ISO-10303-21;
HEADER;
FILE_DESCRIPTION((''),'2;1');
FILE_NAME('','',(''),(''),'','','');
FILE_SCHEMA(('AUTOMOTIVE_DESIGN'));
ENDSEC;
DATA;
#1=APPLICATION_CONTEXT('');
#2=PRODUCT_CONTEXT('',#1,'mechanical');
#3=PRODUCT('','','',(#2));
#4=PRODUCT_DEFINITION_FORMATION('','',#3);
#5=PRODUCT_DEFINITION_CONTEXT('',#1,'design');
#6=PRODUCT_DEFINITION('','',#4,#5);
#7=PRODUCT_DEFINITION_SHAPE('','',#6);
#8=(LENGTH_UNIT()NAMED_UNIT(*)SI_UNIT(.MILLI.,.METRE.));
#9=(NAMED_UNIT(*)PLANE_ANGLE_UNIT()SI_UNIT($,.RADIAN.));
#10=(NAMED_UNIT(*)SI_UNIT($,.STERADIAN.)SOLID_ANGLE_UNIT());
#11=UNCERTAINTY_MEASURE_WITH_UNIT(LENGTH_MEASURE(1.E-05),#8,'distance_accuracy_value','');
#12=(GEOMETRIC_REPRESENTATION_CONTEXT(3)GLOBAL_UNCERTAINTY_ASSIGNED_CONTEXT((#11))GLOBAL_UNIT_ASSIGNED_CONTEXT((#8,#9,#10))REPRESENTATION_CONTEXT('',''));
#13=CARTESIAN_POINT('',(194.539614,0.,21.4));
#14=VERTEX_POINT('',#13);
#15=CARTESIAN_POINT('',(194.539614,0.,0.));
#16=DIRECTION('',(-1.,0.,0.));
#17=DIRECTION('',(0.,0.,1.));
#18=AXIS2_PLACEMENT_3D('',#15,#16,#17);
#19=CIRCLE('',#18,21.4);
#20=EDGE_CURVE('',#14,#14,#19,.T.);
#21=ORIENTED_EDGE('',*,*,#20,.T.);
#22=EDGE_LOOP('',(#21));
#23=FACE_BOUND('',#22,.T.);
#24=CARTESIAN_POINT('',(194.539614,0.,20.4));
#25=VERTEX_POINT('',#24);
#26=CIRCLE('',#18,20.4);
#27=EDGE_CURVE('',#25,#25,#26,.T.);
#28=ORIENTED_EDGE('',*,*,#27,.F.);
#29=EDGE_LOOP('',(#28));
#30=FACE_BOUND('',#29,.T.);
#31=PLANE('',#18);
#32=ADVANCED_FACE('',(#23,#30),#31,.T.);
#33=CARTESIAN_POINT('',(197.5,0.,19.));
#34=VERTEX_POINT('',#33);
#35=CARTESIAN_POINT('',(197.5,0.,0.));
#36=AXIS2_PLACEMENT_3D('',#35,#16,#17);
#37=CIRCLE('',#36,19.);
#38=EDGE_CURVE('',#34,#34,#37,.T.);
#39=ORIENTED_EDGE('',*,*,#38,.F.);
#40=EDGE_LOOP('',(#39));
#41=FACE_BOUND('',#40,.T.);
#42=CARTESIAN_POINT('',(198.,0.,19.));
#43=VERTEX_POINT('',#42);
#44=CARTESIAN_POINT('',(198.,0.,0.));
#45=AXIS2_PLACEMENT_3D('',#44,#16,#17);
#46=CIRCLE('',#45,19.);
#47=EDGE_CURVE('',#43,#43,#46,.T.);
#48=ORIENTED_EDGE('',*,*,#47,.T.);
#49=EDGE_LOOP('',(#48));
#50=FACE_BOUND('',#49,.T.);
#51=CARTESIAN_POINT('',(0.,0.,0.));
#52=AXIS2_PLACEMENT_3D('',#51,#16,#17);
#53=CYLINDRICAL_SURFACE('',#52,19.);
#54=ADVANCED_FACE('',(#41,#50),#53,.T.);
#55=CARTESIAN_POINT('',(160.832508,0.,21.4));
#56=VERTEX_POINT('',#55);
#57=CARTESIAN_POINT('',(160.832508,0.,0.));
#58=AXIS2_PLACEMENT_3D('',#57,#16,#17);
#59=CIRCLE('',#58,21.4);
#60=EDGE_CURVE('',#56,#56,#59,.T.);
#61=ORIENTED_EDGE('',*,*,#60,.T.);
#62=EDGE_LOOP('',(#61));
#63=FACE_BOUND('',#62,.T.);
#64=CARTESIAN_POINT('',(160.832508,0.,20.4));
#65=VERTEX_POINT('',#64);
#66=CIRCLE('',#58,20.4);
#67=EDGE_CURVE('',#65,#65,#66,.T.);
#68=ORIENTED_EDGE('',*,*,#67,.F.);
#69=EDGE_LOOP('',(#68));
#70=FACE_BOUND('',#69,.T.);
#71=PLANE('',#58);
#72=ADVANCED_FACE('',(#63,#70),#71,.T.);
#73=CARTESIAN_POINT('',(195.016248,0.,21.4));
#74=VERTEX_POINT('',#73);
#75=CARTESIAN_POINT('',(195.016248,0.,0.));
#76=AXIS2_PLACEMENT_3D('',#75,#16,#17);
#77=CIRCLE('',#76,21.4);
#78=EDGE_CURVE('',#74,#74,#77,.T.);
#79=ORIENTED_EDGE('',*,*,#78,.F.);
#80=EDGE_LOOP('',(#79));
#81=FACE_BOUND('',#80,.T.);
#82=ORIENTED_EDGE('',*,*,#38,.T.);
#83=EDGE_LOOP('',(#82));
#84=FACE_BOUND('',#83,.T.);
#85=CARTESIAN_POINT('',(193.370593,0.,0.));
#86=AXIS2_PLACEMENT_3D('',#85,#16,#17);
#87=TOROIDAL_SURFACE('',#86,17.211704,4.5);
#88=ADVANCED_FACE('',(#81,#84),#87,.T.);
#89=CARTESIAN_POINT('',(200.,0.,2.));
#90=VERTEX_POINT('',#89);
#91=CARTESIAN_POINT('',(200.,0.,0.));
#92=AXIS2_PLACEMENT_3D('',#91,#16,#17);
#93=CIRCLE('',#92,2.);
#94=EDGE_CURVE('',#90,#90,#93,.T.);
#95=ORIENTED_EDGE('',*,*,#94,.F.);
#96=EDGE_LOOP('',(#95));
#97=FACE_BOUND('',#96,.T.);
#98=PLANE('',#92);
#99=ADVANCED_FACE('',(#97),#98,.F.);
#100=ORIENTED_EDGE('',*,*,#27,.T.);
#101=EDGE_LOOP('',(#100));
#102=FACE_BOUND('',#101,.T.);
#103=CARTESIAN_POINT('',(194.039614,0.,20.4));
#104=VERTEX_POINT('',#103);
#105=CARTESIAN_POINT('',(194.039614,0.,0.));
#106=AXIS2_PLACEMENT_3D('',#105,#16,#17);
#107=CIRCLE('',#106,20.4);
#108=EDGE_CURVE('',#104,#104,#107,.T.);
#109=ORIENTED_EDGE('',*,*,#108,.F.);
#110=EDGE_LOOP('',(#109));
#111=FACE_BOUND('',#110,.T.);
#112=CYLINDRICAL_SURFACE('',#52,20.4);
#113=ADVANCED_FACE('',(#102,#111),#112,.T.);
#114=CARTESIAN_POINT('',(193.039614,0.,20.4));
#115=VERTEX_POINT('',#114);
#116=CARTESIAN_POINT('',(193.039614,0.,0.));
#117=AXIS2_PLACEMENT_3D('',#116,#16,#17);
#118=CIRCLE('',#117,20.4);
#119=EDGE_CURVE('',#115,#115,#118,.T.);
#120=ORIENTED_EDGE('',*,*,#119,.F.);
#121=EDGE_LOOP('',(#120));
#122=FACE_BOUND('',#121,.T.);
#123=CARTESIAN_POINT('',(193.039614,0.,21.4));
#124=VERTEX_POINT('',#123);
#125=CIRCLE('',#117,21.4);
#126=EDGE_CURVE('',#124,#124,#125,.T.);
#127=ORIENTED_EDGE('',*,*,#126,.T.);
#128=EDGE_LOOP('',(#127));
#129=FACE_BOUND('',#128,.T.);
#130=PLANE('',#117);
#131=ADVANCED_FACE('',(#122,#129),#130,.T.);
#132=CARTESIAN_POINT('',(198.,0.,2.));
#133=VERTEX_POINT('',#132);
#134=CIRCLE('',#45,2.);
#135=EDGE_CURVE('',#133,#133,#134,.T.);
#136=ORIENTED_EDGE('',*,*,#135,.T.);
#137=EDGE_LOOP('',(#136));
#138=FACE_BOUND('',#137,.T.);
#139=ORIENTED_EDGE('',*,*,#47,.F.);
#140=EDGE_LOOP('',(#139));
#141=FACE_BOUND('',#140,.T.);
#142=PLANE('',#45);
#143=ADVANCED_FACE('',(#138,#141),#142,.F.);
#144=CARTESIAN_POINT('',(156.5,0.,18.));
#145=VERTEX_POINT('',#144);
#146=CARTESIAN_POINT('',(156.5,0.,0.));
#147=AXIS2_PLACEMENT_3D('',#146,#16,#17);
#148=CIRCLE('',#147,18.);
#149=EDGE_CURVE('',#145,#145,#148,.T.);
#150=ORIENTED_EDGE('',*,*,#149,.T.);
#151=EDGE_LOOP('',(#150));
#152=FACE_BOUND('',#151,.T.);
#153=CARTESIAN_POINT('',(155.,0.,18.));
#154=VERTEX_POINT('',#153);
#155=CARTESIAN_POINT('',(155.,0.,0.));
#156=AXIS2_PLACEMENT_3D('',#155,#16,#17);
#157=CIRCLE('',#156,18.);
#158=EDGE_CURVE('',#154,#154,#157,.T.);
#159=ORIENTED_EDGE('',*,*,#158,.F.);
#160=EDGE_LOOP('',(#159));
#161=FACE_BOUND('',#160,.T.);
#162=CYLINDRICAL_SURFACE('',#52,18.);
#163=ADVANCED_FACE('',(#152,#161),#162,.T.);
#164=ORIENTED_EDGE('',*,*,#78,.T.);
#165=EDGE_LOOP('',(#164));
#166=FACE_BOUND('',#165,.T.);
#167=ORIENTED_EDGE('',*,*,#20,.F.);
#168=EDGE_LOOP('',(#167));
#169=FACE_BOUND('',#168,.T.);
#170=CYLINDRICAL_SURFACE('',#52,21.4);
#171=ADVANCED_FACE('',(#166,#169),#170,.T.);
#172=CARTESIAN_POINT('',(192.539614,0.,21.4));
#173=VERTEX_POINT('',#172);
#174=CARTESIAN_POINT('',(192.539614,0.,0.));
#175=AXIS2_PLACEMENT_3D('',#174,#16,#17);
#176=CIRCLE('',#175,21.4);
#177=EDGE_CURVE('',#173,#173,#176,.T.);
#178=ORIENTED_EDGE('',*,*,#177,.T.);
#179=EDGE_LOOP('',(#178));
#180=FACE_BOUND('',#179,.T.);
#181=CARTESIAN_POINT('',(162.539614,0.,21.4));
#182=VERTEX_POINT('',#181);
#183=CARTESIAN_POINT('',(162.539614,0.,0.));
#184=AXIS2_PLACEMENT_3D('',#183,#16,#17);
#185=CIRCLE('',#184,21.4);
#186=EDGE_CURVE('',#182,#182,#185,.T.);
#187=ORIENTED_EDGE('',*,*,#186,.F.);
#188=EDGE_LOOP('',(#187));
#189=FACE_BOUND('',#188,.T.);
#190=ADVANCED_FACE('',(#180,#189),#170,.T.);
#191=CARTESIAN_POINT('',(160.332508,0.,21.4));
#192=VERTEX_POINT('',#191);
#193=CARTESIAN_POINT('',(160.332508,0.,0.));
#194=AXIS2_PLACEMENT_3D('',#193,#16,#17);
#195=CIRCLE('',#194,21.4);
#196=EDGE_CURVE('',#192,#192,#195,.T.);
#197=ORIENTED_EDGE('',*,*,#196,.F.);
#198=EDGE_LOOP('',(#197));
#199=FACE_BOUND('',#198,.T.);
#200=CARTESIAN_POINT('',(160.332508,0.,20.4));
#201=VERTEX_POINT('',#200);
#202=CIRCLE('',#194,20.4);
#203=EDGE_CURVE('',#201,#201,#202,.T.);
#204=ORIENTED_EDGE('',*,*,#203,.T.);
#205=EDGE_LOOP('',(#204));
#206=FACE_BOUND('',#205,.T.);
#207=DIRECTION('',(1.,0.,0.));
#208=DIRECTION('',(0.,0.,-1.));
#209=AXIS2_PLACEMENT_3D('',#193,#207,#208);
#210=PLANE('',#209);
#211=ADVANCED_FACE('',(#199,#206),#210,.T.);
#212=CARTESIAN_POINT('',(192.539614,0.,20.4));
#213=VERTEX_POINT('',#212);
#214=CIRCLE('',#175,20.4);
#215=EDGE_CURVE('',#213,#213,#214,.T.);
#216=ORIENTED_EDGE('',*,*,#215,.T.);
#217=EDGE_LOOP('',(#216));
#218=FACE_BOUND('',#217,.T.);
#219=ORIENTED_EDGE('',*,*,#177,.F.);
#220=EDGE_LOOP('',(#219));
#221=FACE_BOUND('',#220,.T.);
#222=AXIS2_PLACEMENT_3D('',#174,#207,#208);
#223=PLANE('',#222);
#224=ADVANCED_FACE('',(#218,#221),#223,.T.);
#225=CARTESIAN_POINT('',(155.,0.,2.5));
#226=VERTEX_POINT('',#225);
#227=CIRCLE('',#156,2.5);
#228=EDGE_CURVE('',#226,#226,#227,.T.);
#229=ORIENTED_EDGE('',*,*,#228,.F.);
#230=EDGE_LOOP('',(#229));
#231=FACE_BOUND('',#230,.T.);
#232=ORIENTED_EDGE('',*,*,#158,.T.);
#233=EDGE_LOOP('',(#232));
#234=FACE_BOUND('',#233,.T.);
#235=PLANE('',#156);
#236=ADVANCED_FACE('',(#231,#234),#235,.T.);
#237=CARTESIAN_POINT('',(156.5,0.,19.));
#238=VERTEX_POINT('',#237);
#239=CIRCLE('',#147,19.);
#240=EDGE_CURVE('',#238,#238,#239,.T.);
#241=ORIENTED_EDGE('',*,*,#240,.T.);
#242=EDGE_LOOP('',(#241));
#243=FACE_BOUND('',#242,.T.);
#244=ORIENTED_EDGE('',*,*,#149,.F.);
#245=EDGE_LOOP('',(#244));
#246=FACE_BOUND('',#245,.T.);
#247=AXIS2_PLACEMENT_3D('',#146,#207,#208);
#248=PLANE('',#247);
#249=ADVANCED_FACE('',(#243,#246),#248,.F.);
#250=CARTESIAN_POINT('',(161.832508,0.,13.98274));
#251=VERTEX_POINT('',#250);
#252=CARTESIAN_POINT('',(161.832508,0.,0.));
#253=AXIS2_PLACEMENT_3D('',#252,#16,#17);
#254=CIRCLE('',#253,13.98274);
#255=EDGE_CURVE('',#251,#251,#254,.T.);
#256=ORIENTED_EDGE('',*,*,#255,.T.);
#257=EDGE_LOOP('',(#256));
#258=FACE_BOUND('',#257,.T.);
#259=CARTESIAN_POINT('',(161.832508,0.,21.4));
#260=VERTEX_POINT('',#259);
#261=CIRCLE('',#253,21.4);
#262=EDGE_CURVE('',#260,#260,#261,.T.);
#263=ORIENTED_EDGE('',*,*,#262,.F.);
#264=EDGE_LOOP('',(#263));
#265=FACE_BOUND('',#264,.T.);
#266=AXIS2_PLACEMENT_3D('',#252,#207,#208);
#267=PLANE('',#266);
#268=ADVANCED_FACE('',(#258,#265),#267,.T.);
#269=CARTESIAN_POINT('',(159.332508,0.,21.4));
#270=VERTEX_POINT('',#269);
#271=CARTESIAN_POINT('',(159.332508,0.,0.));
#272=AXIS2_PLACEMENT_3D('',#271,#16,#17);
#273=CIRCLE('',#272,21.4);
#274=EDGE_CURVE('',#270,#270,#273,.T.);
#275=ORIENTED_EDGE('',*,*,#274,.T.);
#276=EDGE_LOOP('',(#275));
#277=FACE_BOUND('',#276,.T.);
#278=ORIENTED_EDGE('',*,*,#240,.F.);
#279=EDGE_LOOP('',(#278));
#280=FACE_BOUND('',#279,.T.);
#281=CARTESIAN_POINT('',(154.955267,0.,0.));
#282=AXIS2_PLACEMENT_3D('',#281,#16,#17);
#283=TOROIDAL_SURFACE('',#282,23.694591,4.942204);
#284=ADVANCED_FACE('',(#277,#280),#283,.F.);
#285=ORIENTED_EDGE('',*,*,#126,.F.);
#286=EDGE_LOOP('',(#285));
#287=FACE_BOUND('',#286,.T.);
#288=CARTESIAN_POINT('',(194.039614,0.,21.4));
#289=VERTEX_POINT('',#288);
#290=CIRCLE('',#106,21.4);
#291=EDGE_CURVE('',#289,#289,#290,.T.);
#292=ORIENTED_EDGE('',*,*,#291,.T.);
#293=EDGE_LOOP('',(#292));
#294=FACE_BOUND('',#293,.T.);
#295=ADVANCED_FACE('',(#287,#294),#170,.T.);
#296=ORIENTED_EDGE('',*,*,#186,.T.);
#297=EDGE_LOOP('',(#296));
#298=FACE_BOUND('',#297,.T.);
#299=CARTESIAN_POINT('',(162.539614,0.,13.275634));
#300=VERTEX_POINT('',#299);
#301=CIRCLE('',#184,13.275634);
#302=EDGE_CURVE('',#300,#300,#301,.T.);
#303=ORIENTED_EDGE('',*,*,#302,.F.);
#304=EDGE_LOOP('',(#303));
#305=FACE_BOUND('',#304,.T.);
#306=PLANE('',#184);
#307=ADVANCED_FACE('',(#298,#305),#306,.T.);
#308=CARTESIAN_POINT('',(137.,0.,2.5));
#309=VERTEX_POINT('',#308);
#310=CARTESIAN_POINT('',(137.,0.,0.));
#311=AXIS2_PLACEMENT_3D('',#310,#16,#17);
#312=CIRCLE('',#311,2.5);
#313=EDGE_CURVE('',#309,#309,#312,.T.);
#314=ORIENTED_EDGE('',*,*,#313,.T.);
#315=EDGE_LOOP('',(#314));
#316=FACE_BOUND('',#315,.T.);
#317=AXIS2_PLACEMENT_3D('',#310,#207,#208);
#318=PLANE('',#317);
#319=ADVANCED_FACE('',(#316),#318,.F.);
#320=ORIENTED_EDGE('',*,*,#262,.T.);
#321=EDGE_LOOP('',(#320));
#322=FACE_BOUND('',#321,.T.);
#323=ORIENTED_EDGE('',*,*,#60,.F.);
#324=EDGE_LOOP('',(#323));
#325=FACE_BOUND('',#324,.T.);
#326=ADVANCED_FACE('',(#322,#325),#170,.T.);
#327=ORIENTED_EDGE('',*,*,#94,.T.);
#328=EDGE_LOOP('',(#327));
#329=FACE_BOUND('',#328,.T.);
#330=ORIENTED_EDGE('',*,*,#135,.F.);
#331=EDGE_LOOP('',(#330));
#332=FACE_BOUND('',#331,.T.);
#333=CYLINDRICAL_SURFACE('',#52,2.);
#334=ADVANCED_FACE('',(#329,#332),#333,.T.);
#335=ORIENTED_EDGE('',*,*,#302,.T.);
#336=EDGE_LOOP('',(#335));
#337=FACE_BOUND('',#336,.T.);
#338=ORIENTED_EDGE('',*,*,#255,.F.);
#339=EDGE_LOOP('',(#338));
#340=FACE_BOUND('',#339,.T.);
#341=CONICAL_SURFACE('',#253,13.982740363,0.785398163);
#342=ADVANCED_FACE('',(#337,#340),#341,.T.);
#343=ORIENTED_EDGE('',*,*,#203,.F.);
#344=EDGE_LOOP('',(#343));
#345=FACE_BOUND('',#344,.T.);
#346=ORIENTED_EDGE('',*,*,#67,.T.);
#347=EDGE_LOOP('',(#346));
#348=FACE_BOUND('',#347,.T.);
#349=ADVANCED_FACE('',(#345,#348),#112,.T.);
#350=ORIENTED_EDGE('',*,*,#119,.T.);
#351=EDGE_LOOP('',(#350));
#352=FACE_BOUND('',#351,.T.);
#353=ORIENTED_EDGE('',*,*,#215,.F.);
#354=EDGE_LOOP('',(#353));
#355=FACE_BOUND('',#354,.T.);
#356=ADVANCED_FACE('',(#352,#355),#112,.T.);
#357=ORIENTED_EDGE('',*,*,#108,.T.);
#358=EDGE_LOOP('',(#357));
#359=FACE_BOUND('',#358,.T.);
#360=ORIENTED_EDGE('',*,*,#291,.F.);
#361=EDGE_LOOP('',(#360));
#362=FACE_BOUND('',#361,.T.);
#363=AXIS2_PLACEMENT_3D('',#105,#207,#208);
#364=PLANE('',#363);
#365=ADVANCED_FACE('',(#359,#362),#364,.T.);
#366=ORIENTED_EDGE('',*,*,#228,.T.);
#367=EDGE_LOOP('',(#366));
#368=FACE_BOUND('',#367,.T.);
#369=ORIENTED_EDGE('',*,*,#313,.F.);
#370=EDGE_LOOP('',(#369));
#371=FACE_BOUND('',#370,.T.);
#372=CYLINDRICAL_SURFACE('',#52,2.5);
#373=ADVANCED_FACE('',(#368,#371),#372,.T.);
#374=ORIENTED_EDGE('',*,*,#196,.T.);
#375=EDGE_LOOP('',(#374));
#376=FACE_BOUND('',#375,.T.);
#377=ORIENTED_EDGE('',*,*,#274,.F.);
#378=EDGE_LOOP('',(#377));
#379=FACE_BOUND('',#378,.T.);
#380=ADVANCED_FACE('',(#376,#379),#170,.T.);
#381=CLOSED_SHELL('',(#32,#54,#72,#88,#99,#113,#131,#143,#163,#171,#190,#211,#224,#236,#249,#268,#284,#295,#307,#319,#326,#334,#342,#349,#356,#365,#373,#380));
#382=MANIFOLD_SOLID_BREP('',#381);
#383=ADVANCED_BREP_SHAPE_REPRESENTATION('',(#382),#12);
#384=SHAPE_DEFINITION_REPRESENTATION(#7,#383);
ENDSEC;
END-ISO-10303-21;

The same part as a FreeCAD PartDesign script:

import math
import FreeCAD as App
import Part
import Sketcher
from FreeCAD import Vector
Q = App.Units.Quantity

doc = App.newDocument("Part")
body = doc.addObject("PartDesign::Body", "Body")

# Sketch on XY plane
sketch1 = doc.addObject("Sketcher::SketchObject", "Sketch")
body.addObject(sketch1)
sketch1.AttachmentSupport = (doc.XY_Plane, [""])
sketch1.MapMode = "FlatFace"
sketch1.addGeometry(Part.LineSegment(Vector(137, 2.5, 0), Vector(137, 0, 0)), False)
sketch1.addGeometry(Part.LineSegment(Vector(137, 0, 0), Vector(200, 0, 0)), False)
sketch1.addGeometry(Part.LineSegment(Vector(200, 0, 0), Vector(200, 2, 0)), False)
sketch1.addGeometry(Part.LineSegment(Vector(200, 2, 0), Vector(198, 2, 0)), False)
sketch1.addGeometry(Part.LineSegment(Vector(198, 2, 0), Vector(198, 19, 0)), False)
sketch1.addGeometry(Part.LineSegment(Vector(198, 19, 0), Vector(197.5, 19, 0)), False)
sketch1.addGeometry(Part.ArcOfCircle(Part.Circle(Vector(193.37, 17.21, 0), Vector(0, 0, 1), 4.5), math.radians(23), math.radians(69)), False)
sketch1.addGeometry(Part.LineSegment(Vector(195.02, 21.4, 0), Vector(194.54, 21.4, 0)), False)
sketch1.addGeometry(Part.LineSegment(Vector(194.54, 21.4, 0), Vector(194.54, 20.4, 0)), False)
sketch1.addGeometry(Part.LineSegment(Vector(194.54, 20.4, 0), Vector(194.04, 20.4, 0)), False)
sketch1.addGeometry(Part.LineSegment(Vector(194.04, 20.4, 0), Vector(194.04, 21.4, 0)), False)
sketch1.addGeometry(Part.LineSegment(Vector(194.04, 21.4, 0), Vector(193.04, 21.4, 0)), False)
sketch1.addGeometry(Part.LineSegment(Vector(193.04, 21.4, 0), Vector(193.04, 20.4, 0)), False)
sketch1.addGeometry(Part.LineSegment(Vector(193.04, 20.4, 0), Vector(192.54, 20.4, 0)), False)
sketch1.addGeometry(Part.LineSegment(Vector(192.54, 20.4, 0), Vector(192.54, 21.4, 0)), False)
sketch1.addGeometry(Part.LineSegment(Vector(192.54, 21.4, 0), Vector(162.54, 21.4, 0)), False)
sketch1.addGeometry(Part.LineSegment(Vector(162.54, 21.4, 0), Vector(162.54, 13.28, 0)), False)
sketch1.addGeometry(Part.LineSegment(Vector(162.54, 13.28, 0), Vector(161.83, 13.98, 0)), False)
sketch1.addGeometry(Part.LineSegment(Vector(161.83, 13.98, 0), Vector(161.83, 21.4, 0)), False)
sketch1.addGeometry(Part.LineSegment(Vector(161.83, 21.4, 0), Vector(160.83, 21.4, 0)), False)
sketch1.addGeometry(Part.LineSegment(Vector(160.83, 21.4, 0), Vector(160.83, 20.4, 0)), False)
sketch1.addGeometry(Part.LineSegment(Vector(160.83, 20.4, 0), Vector(160.33, 20.4, 0)), False)
sketch1.addGeometry(Part.LineSegment(Vector(160.33, 20.4, 0), Vector(160.33, 21.4, 0)), False)
sketch1.addGeometry(Part.LineSegment(Vector(160.33, 21.4, 0), Vector(159.33, 21.4, 0)), False)
sketch1.addGeometry(Part.ArcOfCircle(Part.Circle(Vector(154.96, 23.69, 0), Vector(0, 0, 1), 4.94), math.radians(-72), math.radians(-28)), False)
sketch1.addGeometry(Part.LineSegment(Vector(156.5, 19, 0), Vector(156.5, 18, 0)), False)
sketch1.addGeometry(Part.LineSegment(Vector(156.5, 18, 0), Vector(155, 18, 0)), False)
sketch1.addGeometry(Part.LineSegment(Vector(155, 18, 0), Vector(155, 2.5, 0)), False)
sketch1.addGeometry(Part.LineSegment(Vector(155, 2.5, 0), Vector(137, 2.5, 0)), False)
sketch1.addConstraint(Sketcher.Constraint("Coincident", 0, 2, 1, 1))
sketch1.addConstraint(Sketcher.Constraint("Coincident", 1, 2, 2, 1))
sketch1.addConstraint(Sketcher.Constraint("Coincident", 2, 2, 3, 1))
sketch1.addConstraint(Sketcher.Constraint("Coincident", 3, 2, 4, 1))
sketch1.addConstraint(Sketcher.Constraint("Coincident", 4, 2, 5, 1))
sketch1.addConstraint(Sketcher.Constraint("Coincident", 5, 2, 6, 1))
sketch1.addConstraint(Sketcher.Constraint("Coincident", 6, 2, 7, 1))
sketch1.addConstraint(Sketcher.Constraint("Coincident", 7, 2, 8, 1))
sketch1.addConstraint(Sketcher.Constraint("Coincident", 8, 2, 9, 1))
sketch1.addConstraint(Sketcher.Constraint("Coincident", 9, 2, 10, 1))
sketch1.addConstraint(Sketcher.Constraint("Coincident", 10, 2, 11, 1))
sketch1.addConstraint(Sketcher.Constraint("Coincident", 11, 2, 12, 1))
sketch1.addConstraint(Sketcher.Constraint("Coincident", 12, 2, 13, 1))
sketch1.addConstraint(Sketcher.Constraint("Coincident", 13, 2, 14, 1))
sketch1.addConstraint(Sketcher.Constraint("Coincident", 14, 2, 15, 1))
sketch1.addConstraint(Sketcher.Constraint("Coincident", 15, 2, 16, 1))
sketch1.addConstraint(Sketcher.Constraint("Coincident", 16, 2, 17, 1))
sketch1.addConstraint(Sketcher.Constraint("Coincident", 17, 2, 18, 1))
sketch1.addConstraint(Sketcher.Constraint("Coincident", 18, 2, 19, 1))
sketch1.addConstraint(Sketcher.Constraint("Coincident", 19, 2, 20, 1))
sketch1.addConstraint(Sketcher.Constraint("Coincident", 20, 2, 21, 1))
sketch1.addConstraint(Sketcher.Constraint("Coincident", 21, 2, 22, 1))
sketch1.addConstraint(Sketcher.Constraint("Coincident", 22, 2, 23, 1))
sketch1.addConstraint(Sketcher.Constraint("Coincident", 23, 2, 24, 2))
sketch1.addConstraint(Sketcher.Constraint("Coincident", 24, 1, 25, 1))
sketch1.addConstraint(Sketcher.Constraint("Coincident", 25, 2, 26, 1))
sketch1.addConstraint(Sketcher.Constraint("Coincident", 26, 2, 27, 1))
sketch1.addConstraint(Sketcher.Constraint("Coincident", 27, 2, 28, 1))
sketch1.addConstraint(Sketcher.Constraint("Coincident", 28, 2, 0, 1))
sketch1.addConstraint(Sketcher.Constraint("Vertical", 0))
sketch1.addConstraint(Sketcher.Constraint("Horizontal", 1))
sketch1.addConstraint(Sketcher.Constraint("Vertical", 2))
sketch1.addConstraint(Sketcher.Constraint("Horizontal", 3))
sketch1.addConstraint(Sketcher.Constraint("Vertical", 4))
sketch1.addConstraint(Sketcher.Constraint("Horizontal", 5))
sketch1.addConstraint(Sketcher.Constraint("Horizontal", 7))
sketch1.addConstraint(Sketcher.Constraint("Vertical", 8))
sketch1.addConstraint(Sketcher.Constraint("Horizontal", 9))
sketch1.addConstraint(Sketcher.Constraint("Vertical", 10))
sketch1.addConstraint(Sketcher.Constraint("Horizontal", 11))
sketch1.addConstraint(Sketcher.Constraint("Vertical", 12))
sketch1.addConstraint(Sketcher.Constraint("Horizontal", 13))
sketch1.addConstraint(Sketcher.Constraint("Vertical", 14))
sketch1.addConstraint(Sketcher.Constraint("Horizontal", 15))
sketch1.addConstraint(Sketcher.Constraint("Vertical", 16))
sketch1.addConstraint(Sketcher.Constraint("Vertical", 18))
sketch1.addConstraint(Sketcher.Constraint("Horizontal", 19))
sketch1.addConstraint(Sketcher.Constraint("Vertical", 20))
sketch1.addConstraint(Sketcher.Constraint("Horizontal", 21))
sketch1.addConstraint(Sketcher.Constraint("Vertical", 22))
sketch1.addConstraint(Sketcher.Constraint("Horizontal", 23))
sketch1.addConstraint(Sketcher.Constraint("Vertical", 25))
sketch1.addConstraint(Sketcher.Constraint("Horizontal", 26))
sketch1.addConstraint(Sketcher.Constraint("Vertical", 27))
sketch1.addConstraint(Sketcher.Constraint("Horizontal", 28))
sketch1.addConstraint(Sketcher.Constraint("PointOnObject", 0, 2, -1))
sketch1.addConstraint(Sketcher.Constraint("Horizontal", 7, 2, 10, 2))
sketch1.addConstraint(Sketcher.Constraint("Horizontal", 9, 2, 12, 2))
sketch1.addConstraint(Sketcher.Constraint("Horizontal", 11, 2, 14, 2))
sketch1.addConstraint(Sketcher.Constraint("Horizontal", 15, 2, 18, 2))
sketch1.addConstraint(Sketcher.Constraint("Horizontal", 13, 2, 20, 2))
sketch1.addConstraint(Sketcher.Constraint("Horizontal", 19, 2, 22, 2))
sketch1.addConstraint(Sketcher.Constraint("Horizontal", 5, 2, 24, 1))
sketch1.addConstraint(Sketcher.Constraint("Equal", 5, 9))
sketch1.addConstraint(Sketcher.Constraint("Equal", 9, 13))
sketch1.addConstraint(Sketcher.Constraint("Equal", 11, 19))
sketch1.addConstraint(Sketcher.Constraint("Equal", 13, 21))
sketch1.addConstraint(Sketcher.Constraint("Equal", 19, 23))
sketch1.addConstraint(Sketcher.Constraint("Equal", 3, 2))
sketch1.addConstraint(Sketcher.Constraint("Equal", 23, 8))
sketch1.addConstraint(Sketcher.Constraint("Equal", 22, 25))
sketch1.addConstraint(Sketcher.Constraint("Radius", 6, 4.5))
sketch1.addConstraint(Sketcher.Constraint("DistanceX", 1, 1, 1, 2, 63.0))
sketch1.addConstraint(Sketcher.Constraint("DistanceX", 3, 2, 3, 1, 2.0))
sketch1.addConstraint(Sketcher.Constraint("DistanceX", 11, 2, 11, 1, 1.0))
sketch1.addConstraint(Sketcher.Constraint("DistanceX", 15, 2, 15, 1, 30.0))
sketch1.addConstraint(Sketcher.Constraint("DistanceX", 28, 2, 28, 1, 18.0))
sketch1.addConstraint(Sketcher.Constraint("DistanceY", 4, 1, 4, 2, 17.0))
sketch1.addConstraint(Sketcher.Constraint("Angle", 17, Q("135 deg")))
sketch1.addConstraint(Sketcher.Constraint("Distance", 17, 1.0))
sketch1.addConstraint(Sketcher.Constraint("DistanceX", 5, 2, 5, 1, 0.5))
sketch1.addConstraint(Sketcher.Constraint("DistanceX", 26, 2, 26, 1, 1.5))
sketch1.addConstraint(Sketcher.Constraint("DistanceY", 0, 2, 0, 1, 2.5))
sketch1.addConstraint(Sketcher.Constraint("DistanceX", -1, 1, 0, 2, 137.0))
sketch1.addConstraint(Sketcher.Constraint("DistanceY", -1, 1, 6, 2, 21.4))
sketch1.addConstraint(Sketcher.Constraint("Radius", 24, 4.942204))
sketch1.addConstraint(Sketcher.Constraint("DistanceY", 18, 1, 18, 2, 7.41726))
sketch1.addConstraint(Sketcher.Constraint("DistanceX", 7, 2, 7, 1, 0.476634))
sketch1.addConstraint(Sketcher.Constraint("DistanceY", -1, 1, 24, 3, 23.694591))
revolution = doc.addObject("PartDesign::Revolution", "Revolution")
body.addObject(revolution)
revolution.Profile = sketch1
revolution.ReferenceAxis = (sketch1, ["H_Axis"])
revolution.Angle = 360

doc.recompute()
